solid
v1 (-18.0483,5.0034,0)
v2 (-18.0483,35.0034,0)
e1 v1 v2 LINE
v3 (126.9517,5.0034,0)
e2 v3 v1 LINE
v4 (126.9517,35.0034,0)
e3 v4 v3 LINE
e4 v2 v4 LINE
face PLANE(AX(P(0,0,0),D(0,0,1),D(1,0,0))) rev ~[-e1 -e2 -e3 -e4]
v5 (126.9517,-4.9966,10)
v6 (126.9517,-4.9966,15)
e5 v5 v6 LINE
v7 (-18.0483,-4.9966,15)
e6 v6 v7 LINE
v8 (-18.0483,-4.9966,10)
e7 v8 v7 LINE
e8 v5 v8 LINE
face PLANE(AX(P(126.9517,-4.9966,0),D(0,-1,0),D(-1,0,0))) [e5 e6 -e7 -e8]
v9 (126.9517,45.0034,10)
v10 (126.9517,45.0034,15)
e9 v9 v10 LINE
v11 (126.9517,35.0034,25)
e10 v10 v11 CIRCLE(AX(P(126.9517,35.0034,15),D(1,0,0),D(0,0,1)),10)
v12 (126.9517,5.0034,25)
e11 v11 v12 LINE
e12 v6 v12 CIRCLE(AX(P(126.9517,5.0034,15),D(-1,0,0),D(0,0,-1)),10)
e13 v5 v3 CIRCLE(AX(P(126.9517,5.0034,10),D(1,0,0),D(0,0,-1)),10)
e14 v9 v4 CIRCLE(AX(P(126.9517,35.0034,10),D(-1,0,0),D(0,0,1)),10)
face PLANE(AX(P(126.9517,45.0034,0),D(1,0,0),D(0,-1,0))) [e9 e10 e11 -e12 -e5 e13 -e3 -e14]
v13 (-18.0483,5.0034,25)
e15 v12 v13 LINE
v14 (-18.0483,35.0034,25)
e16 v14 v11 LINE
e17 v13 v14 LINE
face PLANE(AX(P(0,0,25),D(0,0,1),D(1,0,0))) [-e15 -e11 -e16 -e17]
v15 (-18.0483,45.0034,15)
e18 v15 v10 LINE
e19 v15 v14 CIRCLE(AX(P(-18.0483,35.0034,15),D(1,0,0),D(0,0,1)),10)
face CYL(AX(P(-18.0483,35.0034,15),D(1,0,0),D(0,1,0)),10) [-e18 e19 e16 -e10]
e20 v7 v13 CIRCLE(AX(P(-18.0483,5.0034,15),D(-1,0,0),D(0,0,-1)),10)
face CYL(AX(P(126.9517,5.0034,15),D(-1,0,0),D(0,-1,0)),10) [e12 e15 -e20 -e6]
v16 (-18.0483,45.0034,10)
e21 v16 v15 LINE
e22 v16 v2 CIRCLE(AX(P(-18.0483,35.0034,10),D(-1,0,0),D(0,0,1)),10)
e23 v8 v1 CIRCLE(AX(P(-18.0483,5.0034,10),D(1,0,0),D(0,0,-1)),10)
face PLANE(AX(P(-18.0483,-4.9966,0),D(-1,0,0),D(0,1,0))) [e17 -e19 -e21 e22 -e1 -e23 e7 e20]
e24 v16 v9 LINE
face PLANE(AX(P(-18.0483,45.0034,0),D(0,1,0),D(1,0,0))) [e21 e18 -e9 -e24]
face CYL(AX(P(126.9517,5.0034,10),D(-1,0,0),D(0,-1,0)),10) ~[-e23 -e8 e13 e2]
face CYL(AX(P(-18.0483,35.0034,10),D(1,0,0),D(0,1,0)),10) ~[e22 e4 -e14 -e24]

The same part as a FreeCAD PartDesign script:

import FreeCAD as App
import Part
import Sketcher
Q = App.Units.Quantity


def edges_at(feature, points):
    """Names of the edges that pass closest to the given points."""
    edges = feature.Shape.Edges
    near = lambda p: min(range(len(edges)), key=lambda i: edges[i].distToShape(Part.Vertex(*p))[0])
    return sorted({f"Edge{near(p) + 1}" for p in points})


def add_polygon(sketch, points):
    """Adds a closed chain of lines whose ends are joined by coincident constraints."""
    first, n = sketch.GeometryCount, len(points)
    for a, b in zip(points, points[1:] + points[:1]):
        sketch.addGeometry(Part.LineSegment(App.Vector(*a, 0), App.Vector(*b, 0)), False)
    for i in range(n):
        sketch.addConstraint(Sketcher.Constraint("Coincident", first + i, 2, first + (i + 1) % n, 1))

doc = App.newDocument("Part")
body = doc.addObject("PartDesign::Body", "Body")

# Sketch on XY plane
sketch1 = body.newObject("Sketcher::SketchObject", "Sketch")
sketch1.AttachmentSupport = (doc.getObject("XY_Plane"), [""])
sketch1.MapMode = "FlatFace"
add_polygon(sketch1, [(127, 45), (-18, 45), (-18, -5), (127, -5)])  # lines 0-3
sketch1.addConstraint([
    Sketcher.Constraint("Horizontal", 0),
    Sketcher.Constraint("Vertical", 1),
    Sketcher.Constraint("Horizontal", 2),
    Sketcher.Constraint("Vertical", 3),
    Sketcher.Constraint("DistanceX", 0, 2, 0, 1, Q("145 mm")),
    Sketcher.Constraint("DistanceY", 1, 2, 1, 1, Q("50 mm")),
    Sketcher.Constraint("DistanceX", 0, 2, -1, 1, Q("18.0483 mm")),
    Sketcher.Constraint("DistanceY", -1, 1, 0, 2, Q("45.0034 mm")),
])
pad1 = body.newObject("PartDesign::Pad", "Pad")
pad1.Profile = sketch1
pad1.Length = 25
doc.recompute()

fillet = body.newObject("PartDesign::Fillet", "Fillet")
fillet.Base = (pad1, edges_at(pad1, [
    (54.452, 45.003, 25),
    (54.452, 45.003, 0),
    (54.452, -4.997, 25),
    (54.452, -4.997, 0),
]))
fillet.Radius = 10

doc.recompute()
